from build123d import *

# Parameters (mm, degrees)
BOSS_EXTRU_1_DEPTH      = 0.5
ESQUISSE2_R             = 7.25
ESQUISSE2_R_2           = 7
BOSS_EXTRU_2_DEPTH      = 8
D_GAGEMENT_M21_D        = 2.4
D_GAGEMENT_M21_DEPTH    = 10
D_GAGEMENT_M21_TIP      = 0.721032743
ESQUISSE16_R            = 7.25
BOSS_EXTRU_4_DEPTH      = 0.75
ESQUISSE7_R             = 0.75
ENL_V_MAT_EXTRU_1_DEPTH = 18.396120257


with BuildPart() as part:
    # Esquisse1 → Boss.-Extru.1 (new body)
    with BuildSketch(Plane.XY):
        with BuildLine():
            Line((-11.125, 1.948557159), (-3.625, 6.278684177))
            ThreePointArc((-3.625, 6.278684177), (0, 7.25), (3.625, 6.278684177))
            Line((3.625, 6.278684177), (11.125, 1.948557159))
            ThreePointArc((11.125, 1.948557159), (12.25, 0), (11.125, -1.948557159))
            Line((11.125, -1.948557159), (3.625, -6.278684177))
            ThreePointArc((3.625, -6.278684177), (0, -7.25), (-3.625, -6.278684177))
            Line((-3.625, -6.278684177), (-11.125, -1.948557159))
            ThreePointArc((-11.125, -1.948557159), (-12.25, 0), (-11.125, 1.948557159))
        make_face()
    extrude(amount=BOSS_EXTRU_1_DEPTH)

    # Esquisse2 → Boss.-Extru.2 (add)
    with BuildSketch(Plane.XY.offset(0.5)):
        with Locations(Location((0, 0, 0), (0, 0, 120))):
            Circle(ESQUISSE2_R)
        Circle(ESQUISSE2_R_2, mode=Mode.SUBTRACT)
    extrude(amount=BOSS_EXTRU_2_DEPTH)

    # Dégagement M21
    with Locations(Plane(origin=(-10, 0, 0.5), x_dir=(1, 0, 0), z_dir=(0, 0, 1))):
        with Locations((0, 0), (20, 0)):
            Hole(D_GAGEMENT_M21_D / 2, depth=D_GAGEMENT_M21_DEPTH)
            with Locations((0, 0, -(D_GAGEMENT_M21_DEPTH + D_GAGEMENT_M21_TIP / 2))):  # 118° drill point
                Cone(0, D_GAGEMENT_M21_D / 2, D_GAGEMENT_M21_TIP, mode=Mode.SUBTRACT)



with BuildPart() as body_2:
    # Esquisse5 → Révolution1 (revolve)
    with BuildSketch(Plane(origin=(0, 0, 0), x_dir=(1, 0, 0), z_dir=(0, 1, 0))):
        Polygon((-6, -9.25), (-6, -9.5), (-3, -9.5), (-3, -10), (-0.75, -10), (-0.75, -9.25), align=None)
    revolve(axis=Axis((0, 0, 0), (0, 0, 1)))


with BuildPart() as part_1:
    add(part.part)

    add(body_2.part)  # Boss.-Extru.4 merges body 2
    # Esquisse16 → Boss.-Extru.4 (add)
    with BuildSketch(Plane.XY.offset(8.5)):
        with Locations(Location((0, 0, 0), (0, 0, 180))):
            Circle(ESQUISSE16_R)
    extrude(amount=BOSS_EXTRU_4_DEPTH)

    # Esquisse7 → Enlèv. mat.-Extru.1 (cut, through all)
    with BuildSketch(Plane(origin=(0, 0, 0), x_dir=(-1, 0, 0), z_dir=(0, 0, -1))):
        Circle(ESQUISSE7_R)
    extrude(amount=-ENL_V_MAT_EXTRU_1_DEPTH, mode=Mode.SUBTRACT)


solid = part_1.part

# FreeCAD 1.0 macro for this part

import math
import FreeCAD as App
import Part
import Sketcher
from FreeCAD import Vector
Q = App.Units.Quantity


def add_polygon(sketch, points):
    """Adds a closed chain of lines whose ends are joined by coincident constraints."""
    first, n = sketch.GeometryCount, len(points)
    for a, b in zip(points, points[1:] + points[:1]):
        sketch.addGeometry(Part.LineSegment(App.Vector(*a, 0), App.Vector(*b, 0)), False)
    for i in range(n):
        sketch.addConstraint(Sketcher.Constraint("Coincident", first + i, 2, first + (i + 1) % n, 1))

doc = App.newDocument("Part")
params = doc.addObject("Spreadsheet::Sheet", "Params")
for row, (alias, value) in enumerate([
    ("sketch1_radius", "2.25 mm"),
    ("sketch1_radius2", "7.25 mm"),
    ("pad1_length", "0.5 mm"),
    ("sketch2_diameter", "14 mm"),
    ("sketch2_diameter2", "14.5 mm"),
    ("pad2_length", "8 mm"),
    ("sketch3_diameter", "2.4 mm"),
    ("hole_diameter", "2.4 mm"),
    ("hole_depth", "10 mm"),
    ("sketch4_width", "3 mm"),
    ("sketch4_height", "0.5 mm"),
    ("sketch4_width2", "2.25 mm"),
    ("sketch4_height2", "0.25 mm"),
    ("revolution_angle", "360 deg"),
    ("sketch5_diameter", "14.5 mm"),
    ("pad3_length", "0.75 mm"),
    ("sketch6_diameter", "1.5 mm"),
], start=1):
    params.set(f"A{row}", alias)
    params.set(f"B{row}", "=" + value)
    params.setAlias(f"B{row}", alias)

body = doc.addObject("PartDesign::Body", "Body")

# Sketch on XY plane
sketch1 = body.newObject("Sketcher::SketchObject", "Sketch")
sketch1.AttachmentSupport = (doc.getObject("XY_Plane"), [""])
sketch1.MapMode = "FlatFace"
sketch1.addGeometry(Part.LineSegment(Vector(-3.6, 6.3, 0), Vector(-11.1, 1.9, 0)), False)
sketch1.addGeometry(Part.ArcOfCircle(Part.Circle(Vector(-10, 0, 0), Vector(0, 0, 1), 2.3), math.radians(120), math.radians(240)), False)
sketch1.addGeometry(Part.LineSegment(Vector(-11.1, -1.9, 0), Vector(-3.6, -6.3, 0)), False)
sketch1.addGeometry(Part.ArcOfCircle(Part.Circle(Vector(0, 0, 0), Vector(0, 0, 1), 7.2), math.radians(-120), math.radians(-60)), False)
sketch1.addGeometry(Part.LineSegment(Vector(3.6, -6.3, 0), Vector(11.1, -1.9, 0)), False)
sketch1.addGeometry(Part.ArcOfCircle(Part.Circle(Vector(10, 0, 0), Vector(0, 0, 1), 2.3), math.radians(-60), math.radians(60)), False)
sketch1.addGeometry(Part.LineSegment(Vector(11.1, 1.9, 0), Vector(3.6, 6.3, 0)), False)
sketch1.addGeometry(Part.ArcOfCircle(Part.Circle(Vector(0, 0, 0), Vector(0, 0, 1), 7.2), math.radians(60), math.radians(120)), False)
sketch1.addConstraint(Sketcher.Constraint("Tangent", 0, 2, 1, 1))
sketch1.addConstraint(Sketcher.Constraint("Tangent", 1, 2, 2, 1))
sketch1.addConstraint(Sketcher.Constraint("Tangent", 2, 2, 3, 1))
sketch1.addConstraint(Sketcher.Constraint("Tangent", 3, 2, 4, 1))
sketch1.addConstraint(Sketcher.Constraint("Tangent", 4, 2, 5, 1))
sketch1.addConstraint(Sketcher.Constraint("Tangent", 5, 2, 6, 1))
sketch1.addConstraint(Sketcher.Constraint("Tangent", 6, 2, 7, 1))
sketch1.addConstraint(Sketcher.Constraint("Tangent", 7, 2, 0, 1))
sketch1.addConstraint(Sketcher.Constraint("Coincident", 3, 3, -1, 1))
sketch1.addConstraint(Sketcher.Constraint("Coincident", 7, 3, -1, 1))
sketch1.addConstraint(Sketcher.Constraint("Equal", 1, 5))
sketch1.addConstraint(Sketcher.Constraint("Equal", 3, 7))
sketch1.addConstraint(Sketcher.Constraint("Symmetric", 1, 3, 5, 3, -1, 1))
sketch1.addConstraint(Sketcher.Constraint("PointOnObject", 1, 3, -1))
sketch1.addConstraint(Sketcher.Constraint("Angle", 0, Q("-150 deg")))
sketch1.addConstraint(Sketcher.Constraint("Radius", 1, Q("2.25 mm")))
sketch1.addConstraint(Sketcher.Constraint("Radius", 3, Q("7.25 mm")))
sketch1.setExpression("Constraints[15]", "Params.sketch1_radius")
sketch1.setExpression("Constraints[16]", "Params.sketch1_radius2")
pad1 = body.newObject("PartDesign::Pad", "Pad")
pad1.Profile = sketch1
pad1.setExpression("Length", "Params.pad1_length")

# Sketch on XY plane
sketch2 = body.newObject("Sketcher::SketchObject", "Sketch001")
sketch2.AttachmentSupport = (doc.getObject("XY_Plane"), [""])
sketch2.MapMode = "FlatFace"
sketch2.AttachmentOffset = App.Placement(Vector(0, 0, 0.5), App.Rotation())
sketch2.addGeometry(Part.Circle(Vector(0, 0, 0), Vector(0, 0, 1), 7), False)
sketch2.addGeometry(Part.Circle(Vector(0, 0, 0), Vector(0, 0, 1), 7), False)
sketch2.addConstraint(Sketcher.Constraint("Coincident", 0, 3, -1, 1))
sketch2.addConstraint(Sketcher.Constraint("Coincident", 1, 3, -1, 1))
sketch2.addConstraint(Sketcher.Constraint("Diameter", 1, Q("14 mm")))
sketch2.addConstraint(Sketcher.Constraint("Diameter", 0, Q("14.5 mm")))
sketch2.setExpression("Constraints[2]", "Params.sketch2_diameter")
sketch2.setExpression("Constraints[3]", "Params.sketch2_diameter2")
pad2 = body.newObject("PartDesign::Pad", "Pad001")
pad2.Profile = sketch2
pad2.setExpression("Length", "Params.pad2_length")

# Sketch on XY plane
sketch3 = body.newObject("Sketcher::SketchObject", "Sketch002")
sketch3.AttachmentSupport = (doc.getObject("XY_Plane"), [""])
sketch3.MapMode = "FlatFace"
sketch3.AttachmentOffset = App.Placement(Vector(0, 0, 0.5), App.Rotation())
sketch3.addGeometry(Part.Circle(Vector(-10, 0, 0), Vector(0, 0, 1), 1.2), False)
sketch3.addGeometry(Part.Circle(Vector(10, 0, 0), Vector(0, 0, 1), 1.2), False)
sketch3.addConstraint(Sketcher.Constraint("Equal", 0, 1))
sketch3.addConstraint(Sketcher.Constraint("Symmetric", 0, 3, 1, 3, -1, 1))
sketch3.addConstraint(Sketcher.Constraint("PointOnObject", 0, 3, -1))
sketch3.addConstraint(Sketcher.Constraint("Diameter", 0, Q("2.4 mm")))
sketch3.addConstraint(Sketcher.Constraint("DistanceX", 0, 3, -1, 1, Q("10 mm")))
sketch3.setExpression("Constraints[3]", "Params.sketch3_diameter")
doc.recompute()
hole = body.newObject("PartDesign::Hole", "Hole")
hole.Profile = sketch3
hole.ThreadType = "None"
hole.setExpression("Diameter", "Params.hole_diameter")
hole.DepthType = "Dimension"
hole.setExpression("Depth", "Params.hole_depth")
hole.DrillPoint = "Angled"
hole.DrillPointAngle = 118
body2 = doc.addObject("PartDesign::Body", "Body001")

# Sketch on XZ plane
sketch4 = body2.newObject("Sketcher::SketchObject", "Sketch003")
sketch4.AttachmentSupport = (doc.getObject("XZ_Plane001"), [""])
sketch4.MapMode = "FlatFace"
add_polygon(sketch4, [(-6, 9.25), (-6, 9.5), (-3, 9.5), (-3, 10), (-0.75, 10), (-0.75, 9.25)])  # lines 0-5
sketch4.addConstraint(Sketcher.Constraint("Vertical", 0))
sketch4.addConstraint(Sketcher.Constraint("Horizontal", 1))
sketch4.addConstraint(Sketcher.Constraint("Vertical", 2))
sketch4.addConstraint(Sketcher.Constraint("Horizontal", 3))
sketch4.addConstraint(Sketcher.Constraint("Vertical", 4))
sketch4.addConstraint(Sketcher.Constraint("Horizontal", 5))
sketch4.addConstraint(Sketcher.Constraint("DistanceX", 1, 1, 1, 2, Q("3 mm")))
sketch4.addConstraint(Sketcher.Constraint("DistanceY", 2, 1, 2, 2, Q("0.5 mm")))
sketch4.addConstraint(Sketcher.Constraint("DistanceX", 0, 2, -1, 1, Q("6 mm")))
sketch4.addConstraint(Sketcher.Constraint("DistanceY", -1, 1, 2, 2, Q("10 mm")))
sketch4.addConstraint(Sketcher.Constraint("DistanceX", 3, 1, 3, 2, Q("2.25 mm")))
sketch4.addConstraint(Sketcher.Constraint("DistanceY", 0, 1, 0, 2, Q("0.25 mm")))
sketch4.setExpression("Constraints[12]", "Params.sketch4_width")
sketch4.setExpression("Constraints[13]", "Params.sketch4_height")
sketch4.setExpression("Constraints[16]", "Params.sketch4_width2")
sketch4.setExpression("Constraints[17]", "Params.sketch4_height2")
revolution = body2.newObject("PartDesign::Revolution", "Revolution")
revolution.Profile = sketch4
revolution.ReferenceAxis = (sketch4, ["V_Axis"])
revolution.setExpression("Angle", "Params.revolution_angle")
body.AllowCompound = True
doc.recompute()

boolean = body.newObject("PartDesign::Boolean", "Boolean")
boolean.Type = "Fuse"
boolean.addObjects([body2])

# Sketch on XY plane
sketch5 = body.newObject("Sketcher::SketchObject", "Sketch004")
sketch5.AttachmentSupport = (doc.getObject("XY_Plane"), [""])
sketch5.MapMode = "FlatFace"
sketch5.AttachmentOffset = App.Placement(Vector(0, 0, 8.5), App.Rotation())
sketch5.addGeometry(Part.Circle(Vector(0, 0, 0), Vector(0, 0, 1), 7), False)
sketch5.addConstraint(Sketcher.Constraint("Coincident", 0, 3, -1, 1))
sketch5.addConstraint(Sketcher.Constraint("Diameter", 0, Q("14.5 mm")))
sketch5.setExpression("Constraints[1]", "Params.sketch5_diameter")
pad3 = body.newObject("PartDesign::Pad", "Pad002")
pad3.Profile = sketch5
pad3.setExpression("Length", "Params.pad3_length")

# Sketch on XY plane
sketch6 = body.newObject("Sketcher::SketchObject", "Sketch005")
sketch6.AttachmentSupport = (doc.getObject("XY_Plane"), [""])
sketch6.MapMode = "FlatFace"
sketch6.addGeometry(Part.Circle(Vector(0, 0, 0), Vector(0, 0, 1), 0.8), False)
sketch6.addConstraint(Sketcher.Constraint("Coincident", 0, 3, -1, 1))
sketch6.addConstraint(Sketcher.Constraint("Diameter", 0, Q("1.5 mm")))
sketch6.setExpression("Constraints[1]", "Params.sketch6_diameter")
pocket1 = body.newObject("PartDesign::Pocket", "Pocket")
pocket1.Profile = sketch6
pocket1.Type = "ThroughAll"
pocket1.Reversed = True

doc.recompute()
